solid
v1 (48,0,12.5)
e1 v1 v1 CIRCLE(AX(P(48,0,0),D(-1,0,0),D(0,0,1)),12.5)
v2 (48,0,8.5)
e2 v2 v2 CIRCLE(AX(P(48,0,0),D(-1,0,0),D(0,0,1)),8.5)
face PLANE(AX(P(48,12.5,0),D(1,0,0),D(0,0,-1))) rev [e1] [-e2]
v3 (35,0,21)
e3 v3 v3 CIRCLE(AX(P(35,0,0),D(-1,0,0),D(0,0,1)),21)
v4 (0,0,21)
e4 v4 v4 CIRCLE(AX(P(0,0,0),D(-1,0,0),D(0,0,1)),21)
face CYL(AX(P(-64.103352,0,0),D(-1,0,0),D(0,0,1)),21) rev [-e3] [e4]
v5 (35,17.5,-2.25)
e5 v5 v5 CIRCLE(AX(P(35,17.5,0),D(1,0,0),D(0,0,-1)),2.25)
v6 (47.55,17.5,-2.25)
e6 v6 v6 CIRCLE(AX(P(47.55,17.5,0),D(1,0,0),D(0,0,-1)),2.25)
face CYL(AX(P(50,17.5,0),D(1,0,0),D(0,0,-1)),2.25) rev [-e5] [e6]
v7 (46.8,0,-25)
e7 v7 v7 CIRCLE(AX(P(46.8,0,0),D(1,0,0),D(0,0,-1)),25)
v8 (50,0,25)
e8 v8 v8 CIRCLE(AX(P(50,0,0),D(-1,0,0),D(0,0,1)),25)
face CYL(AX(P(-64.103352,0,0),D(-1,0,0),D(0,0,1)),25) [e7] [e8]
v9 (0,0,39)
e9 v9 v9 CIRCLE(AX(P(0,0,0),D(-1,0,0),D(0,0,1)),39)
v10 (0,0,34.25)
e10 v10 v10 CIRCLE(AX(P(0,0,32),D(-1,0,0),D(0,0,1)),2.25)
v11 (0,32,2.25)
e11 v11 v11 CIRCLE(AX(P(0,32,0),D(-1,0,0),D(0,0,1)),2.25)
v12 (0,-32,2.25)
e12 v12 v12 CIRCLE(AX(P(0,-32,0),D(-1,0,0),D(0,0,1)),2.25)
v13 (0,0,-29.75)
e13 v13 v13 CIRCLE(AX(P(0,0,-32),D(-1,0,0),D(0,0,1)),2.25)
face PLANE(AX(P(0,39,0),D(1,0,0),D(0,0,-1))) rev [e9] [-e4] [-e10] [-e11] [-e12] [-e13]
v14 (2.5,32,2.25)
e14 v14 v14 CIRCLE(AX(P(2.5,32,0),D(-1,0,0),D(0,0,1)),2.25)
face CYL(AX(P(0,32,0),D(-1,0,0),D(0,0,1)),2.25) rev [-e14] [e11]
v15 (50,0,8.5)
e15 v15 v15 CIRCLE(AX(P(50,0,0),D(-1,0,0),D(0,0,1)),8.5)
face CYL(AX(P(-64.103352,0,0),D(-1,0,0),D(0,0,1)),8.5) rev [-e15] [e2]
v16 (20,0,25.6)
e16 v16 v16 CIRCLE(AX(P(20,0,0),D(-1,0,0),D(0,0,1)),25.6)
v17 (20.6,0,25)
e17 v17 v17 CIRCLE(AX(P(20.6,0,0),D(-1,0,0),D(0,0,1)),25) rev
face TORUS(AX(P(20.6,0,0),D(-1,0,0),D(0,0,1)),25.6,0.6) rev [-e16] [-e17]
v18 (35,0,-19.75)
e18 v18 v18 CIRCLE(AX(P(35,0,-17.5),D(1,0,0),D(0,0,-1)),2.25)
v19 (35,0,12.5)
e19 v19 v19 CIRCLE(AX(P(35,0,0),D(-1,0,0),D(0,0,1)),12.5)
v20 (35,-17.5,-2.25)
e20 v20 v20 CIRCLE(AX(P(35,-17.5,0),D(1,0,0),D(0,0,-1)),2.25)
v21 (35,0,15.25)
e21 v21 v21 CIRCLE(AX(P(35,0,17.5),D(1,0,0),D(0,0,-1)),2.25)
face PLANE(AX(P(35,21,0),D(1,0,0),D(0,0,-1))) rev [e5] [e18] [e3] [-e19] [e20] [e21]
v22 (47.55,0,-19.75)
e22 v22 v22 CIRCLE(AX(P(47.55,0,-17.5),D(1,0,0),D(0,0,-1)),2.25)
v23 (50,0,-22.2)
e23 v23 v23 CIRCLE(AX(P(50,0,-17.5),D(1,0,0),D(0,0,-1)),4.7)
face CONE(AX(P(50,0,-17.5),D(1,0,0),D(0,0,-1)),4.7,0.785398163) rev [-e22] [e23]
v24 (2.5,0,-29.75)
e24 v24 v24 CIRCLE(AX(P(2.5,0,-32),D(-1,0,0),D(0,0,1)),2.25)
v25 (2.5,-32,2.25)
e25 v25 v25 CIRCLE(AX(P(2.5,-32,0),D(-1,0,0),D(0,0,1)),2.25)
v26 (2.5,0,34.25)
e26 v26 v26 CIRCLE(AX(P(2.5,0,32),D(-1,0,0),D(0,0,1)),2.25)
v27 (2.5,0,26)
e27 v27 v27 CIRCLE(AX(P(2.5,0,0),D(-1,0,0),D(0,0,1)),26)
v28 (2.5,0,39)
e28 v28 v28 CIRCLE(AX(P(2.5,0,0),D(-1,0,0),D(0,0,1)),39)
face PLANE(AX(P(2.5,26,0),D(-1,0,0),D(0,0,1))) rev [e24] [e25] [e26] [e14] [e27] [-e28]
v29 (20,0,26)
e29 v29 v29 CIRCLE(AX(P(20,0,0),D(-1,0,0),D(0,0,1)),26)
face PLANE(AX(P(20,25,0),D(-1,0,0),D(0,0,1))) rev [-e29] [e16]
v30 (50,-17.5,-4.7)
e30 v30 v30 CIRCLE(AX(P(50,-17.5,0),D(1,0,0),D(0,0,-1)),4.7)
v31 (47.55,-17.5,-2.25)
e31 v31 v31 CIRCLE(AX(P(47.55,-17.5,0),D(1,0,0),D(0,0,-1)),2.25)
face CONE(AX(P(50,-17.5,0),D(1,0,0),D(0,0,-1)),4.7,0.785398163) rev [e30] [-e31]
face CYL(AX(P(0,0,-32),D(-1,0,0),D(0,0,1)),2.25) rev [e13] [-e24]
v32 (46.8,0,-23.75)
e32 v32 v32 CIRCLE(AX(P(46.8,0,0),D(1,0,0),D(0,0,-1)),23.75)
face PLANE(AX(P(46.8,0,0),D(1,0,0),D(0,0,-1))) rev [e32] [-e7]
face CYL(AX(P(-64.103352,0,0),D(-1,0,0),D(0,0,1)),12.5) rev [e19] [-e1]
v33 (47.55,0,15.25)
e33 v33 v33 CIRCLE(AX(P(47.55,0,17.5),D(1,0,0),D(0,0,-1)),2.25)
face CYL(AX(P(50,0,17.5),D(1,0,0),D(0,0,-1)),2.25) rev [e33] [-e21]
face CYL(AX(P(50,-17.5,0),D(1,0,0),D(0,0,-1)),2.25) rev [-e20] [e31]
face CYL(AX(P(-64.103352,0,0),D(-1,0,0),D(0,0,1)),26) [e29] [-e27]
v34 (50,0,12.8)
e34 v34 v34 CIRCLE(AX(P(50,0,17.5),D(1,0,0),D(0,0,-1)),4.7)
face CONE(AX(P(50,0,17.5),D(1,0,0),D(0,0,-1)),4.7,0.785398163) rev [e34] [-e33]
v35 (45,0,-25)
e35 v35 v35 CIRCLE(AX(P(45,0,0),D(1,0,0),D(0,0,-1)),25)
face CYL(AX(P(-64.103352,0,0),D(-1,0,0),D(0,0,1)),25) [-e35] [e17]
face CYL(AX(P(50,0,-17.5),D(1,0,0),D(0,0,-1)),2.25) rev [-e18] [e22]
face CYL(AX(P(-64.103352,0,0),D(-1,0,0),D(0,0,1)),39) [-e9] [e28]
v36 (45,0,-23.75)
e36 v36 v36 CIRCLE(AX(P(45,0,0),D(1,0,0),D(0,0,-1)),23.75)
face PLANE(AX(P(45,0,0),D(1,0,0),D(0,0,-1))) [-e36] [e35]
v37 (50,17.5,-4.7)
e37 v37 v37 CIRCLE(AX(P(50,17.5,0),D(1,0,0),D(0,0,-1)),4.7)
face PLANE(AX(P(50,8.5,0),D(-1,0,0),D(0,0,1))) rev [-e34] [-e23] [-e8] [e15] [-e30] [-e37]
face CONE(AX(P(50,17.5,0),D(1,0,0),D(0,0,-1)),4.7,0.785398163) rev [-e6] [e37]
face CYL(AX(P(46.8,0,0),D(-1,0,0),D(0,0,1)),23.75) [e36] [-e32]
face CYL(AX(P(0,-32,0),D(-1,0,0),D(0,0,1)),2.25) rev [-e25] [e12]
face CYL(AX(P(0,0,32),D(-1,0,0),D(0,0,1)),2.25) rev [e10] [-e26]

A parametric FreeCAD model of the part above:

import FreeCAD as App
import Part
import Sketcher
from FreeCAD import Vector


def edges_at(feature, points):
    """Names of the edges that pass closest to the given points."""
    edges = feature.Shape.Edges
    near = lambda p: min(range(len(edges)), key=lambda i: edges[i].distToShape(Part.Vertex(*p))[0])
    return sorted({f"Edge{near(p) + 1}" for p in points})

doc = App.newDocument("Part")
params = doc.addObject("Spreadsheet::Sheet", "Params")
for row, (alias, value) in enumerate([
    ("sketch1_width", "35 mm"),
    ("sketch1_width2", "13 mm"),
    ("sketch1_width3", "2 mm"),
    ("sketch1_width4", "30 mm"),
    ("sketch1_height", "4 mm"),
    ("revolution_angle", "360 deg"),
    ("sketch2_diameter", "4.5 mm"),
    ("hole_diameter", "4.5 mm"),
    ("hole_depth", "15 mm"),
    ("hole_csink_diameter", "9.4 mm"),
    ("fillet_radius", "0.6 mm"),
    ("sketch3_diameter", "50 mm"),
    ("sketch3_diameter2", "47.5 mm"),
    ("pocket1_length", "1.8 mm"),
    ("sketch4_diameter", "4.5 mm"),
    ("hole2_diameter", "4.5 mm"),
    ("hole2_depth", "2.5 mm"),
], start=1):
    params.set(f"A{row}", alias)
    params.set(f"B{row}", "=" + value)
    params.setAlias(f"B{row}", alias)

body = doc.addObject("PartDesign::Body", "Body")

sketch1 = body.newObject("Sketcher::SketchObject", "Sketch")
sketch1.AttachmentSupport = (doc.getObject("XY_Plane"), [""])
sketch1.MapMode = "FlatFace"
sketch1.addGeometry([
    Part.LineSegment(Vector(0, 21, 0), Vector(35, 21, 0)),
    Part.LineSegment(Vector(35, 21, 0), Vector(35, 12.5, 0)),
    Part.LineSegment(Vector(35, 12.5, 0), Vector(48, 12.5, 0)),
    Part.LineSegment(Vector(48, 12.5, 0), Vector(48, 8.5, 0)),
    Part.LineSegment(Vector(48, 8.5, 0), Vector(50, 8.5, 0)),
    Part.LineSegment(Vector(50, 8.5, 0), Vector(50, 25, 0)),
    Part.LineSegment(Vector(50, 25, 0), Vector(20, 25, 0)),
    Part.LineSegment(Vector(20, 25, 0), Vector(20, 26, 0)),
    Part.LineSegment(Vector(20, 26, 0), Vector(2.5, 26, 0)),
    Part.LineSegment(Vector(2.5, 26, 0), Vector(2.5, 39, 0)),
    Part.LineSegment(Vector(2.5, 39, 0), Vector(0, 39, 0)),
    Part.LineSegment(Vector(0, 39, 0), Vector(0, 21, 0)),
], False)
sketch1.addConstraint([
    Sketcher.Constraint("Coincident", 0, 2, 1, 1),
    Sketcher.Constraint("Coincident", 1, 2, 2, 1),
    Sketcher.Constraint("Coincident", 2, 2, 3, 1),
    Sketcher.Constraint("Coincident", 3, 2, 4, 1),
    Sketcher.Constraint("Coincident", 4, 2, 5, 1),
    Sketcher.Constraint("Coincident", 5, 2, 6, 1),
    Sketcher.Constraint("Coincident", 6, 2, 7, 1),
    Sketcher.Constraint("Coincident", 7, 2, 8, 1),
    Sketcher.Constraint("Coincident", 8, 2, 9, 1),
    Sketcher.Constraint("Coincident", 9, 2, 10, 1),
    Sketcher.Constraint("Coincident", 10, 2, 11, 1),
    Sketcher.Constraint("Coincident", 11, 2, 0, 1),
    Sketcher.Constraint("Horizontal", 0),
    Sketcher.Constraint("Vertical", 1),
    Sketcher.Constraint("Horizontal", 2),
    Sketcher.Constraint("Vertical", 3),
    Sketcher.Constraint("Horizontal", 4),
    Sketcher.Constraint("Vertical", 5),
    Sketcher.Constraint("Horizontal", 6),
    Sketcher.Constraint("Vertical", 7),
    Sketcher.Constraint("Horizontal", 8),
    Sketcher.Constraint("Vertical", 9),
    Sketcher.Constraint("Horizontal", 10),
    Sketcher.Constraint("Vertical", 11),
    Sketcher.Constraint("PointOnObject", 10, 2, -2),
    Sketcher.Constraint("Equal", 2, 9),
    Sketcher.Constraint("DistanceX", 0, 1, 0, 2, 35.0),
    Sketcher.Constraint("DistanceX", 2, 1, 2, 2, 13.0),
    Sketcher.Constraint("DistanceX", 4, 1, 4, 2, 2.0),
    Sketcher.Constraint("DistanceX", 6, 2, 6, 1, 30.0),
    Sketcher.Constraint("DistanceY", 3, 2, 3, 1, 4.0),
    Sketcher.Constraint("DistanceY", 7, 1, 7, 2, 1.0),
    Sketcher.Constraint("DistanceY", 11, 2, 11, 1, 18.0),
    Sketcher.Constraint("DistanceX", 8, 2, 8, 1, 17.5),
    Sketcher.Constraint("DistanceY", 1, 2, 1, 1, 8.5),
    Sketcher.Constraint("DistanceY", -1, 1, 0, 2, 21.0),
])
sketch1.setExpression("Constraints[26]", "Params.sketch1_width")
sketch1.setExpression("Constraints[27]", "Params.sketch1_width2")
sketch1.setExpression("Constraints[28]", "Params.sketch1_width3")
sketch1.setExpression("Constraints[29]", "Params.sketch1_width4")
sketch1.setExpression("Constraints[30]", "Params.sketch1_height")
revolution = body.newObject("PartDesign::Revolution", "Revolution")
revolution.Profile = sketch1
revolution.ReferenceAxis = (sketch1, ["H_Axis"])
revolution.setExpression("Angle", "Params.revolution_angle")

sketch2 = body.newObject("Sketcher::SketchObject", "Sketch001")
sketch2.AttachmentSupport = (doc.getObject("YZ_Plane"), [""])
sketch2.MapMode = "FlatFace"
sketch2.AttachmentOffset = App.Placement(Vector(0, 0, 50), App.Rotation())
sketch2.addGeometry([
    Part.Circle(Vector(17.5, 0, 0), Vector(0, 0, 1), 2.2),
    Part.Circle(Vector(0, -17.5, 0), Vector(0, 0, 1), 2.2),
    Part.Circle(Vector(-17.5, 0, 0), Vector(0, 0, 1), 2.2),
    Part.Circle(Vector(0, 17.5, 0), Vector(0, 0, 1), 2.2),
], False)
sketch2.addConstraint([
    Sketcher.Constraint("Equal", 0, 1),
    Sketcher.Constraint("Equal", 1, 2),
    Sketcher.Constraint("Equal", 2, 3),
    Sketcher.Constraint("Symmetric", 0, 3, 2, 3, -1, 1),
    Sketcher.Constraint("Symmetric", 1, 3, 3, 3, -1, 1),
    Sketcher.Constraint("PointOnObject", 0, 3, -1),
    Sketcher.Constraint("PointOnObject", 1, 3, -2),
    Sketcher.Constraint("Diameter", 0, 4.5),
    Sketcher.Constraint("DistanceX", 2, 3, 0, 3, 35.0),
    Sketcher.Constraint("DistanceY", 1, 3, 3, 3, 35.0),
])
sketch2.setExpression("Constraints[7]", "Params.sketch2_diameter")
doc.recompute()
hole = body.newObject("PartDesign::Hole", "Hole")
hole.Profile = sketch2
hole.ThreadType = "None"
hole.setExpression("Diameter", "Params.hole_diameter")
hole.DepthType = "Dimension"
hole.setExpression("Depth", "Params.hole_depth")
hole.DrillPoint = "Flat"
hole.HoleCutType = "Countersink"
hole.setExpression("HoleCutDiameter", "Params.hole_csink_diameter")
hole.HoleCutCountersinkAngle = 90
doc.recompute()

fillet = body.newObject("PartDesign::Fillet", "Fillet")
fillet.Base = (hole, edges_at(hole, [(20, -25, 0)]))
fillet.setExpression("Radius", "Params.fillet_radius")

sketch3 = body.newObject("Sketcher::SketchObject", "Sketch002")
sketch3.AttachmentSupport = (doc.getObject("YZ_Plane"), [""])
sketch3.MapMode = "FlatFace"
sketch3.AttachmentOffset = App.Placement(Vector(0, 0, 45), App.Rotation())
sketch3.addGeometry([
    Part.Circle(Vector(0, 0, 0), Vector(0, 0, 1), 25),
    Part.Circle(Vector(0, 0, 0), Vector(0, 0, 1), 24),
], False)
sketch3.addConstraint([
    Sketcher.Constraint("Coincident", 0, 3, -1, 1),
    Sketcher.Constraint("Coincident", 1, 3, -1, 1),
    Sketcher.Constraint("Diameter", 0, 50.0),
    Sketcher.Constraint("Diameter", 1, 47.5),
])
sketch3.setExpression("Constraints[2]", "Params.sketch3_diameter")
sketch3.setExpression("Constraints[3]", "Params.sketch3_diameter2")
pocket1 = body.newObject("PartDesign::Pocket", "Pocket")
pocket1.Profile = sketch3
pocket1.setExpression("Length", "Params.pocket1_length")
pocket1.Reversed = True

sketch4 = body.newObject("Sketcher::SketchObject", "Sketch003")
sketch4.AttachmentSupport = (doc.getObject("YZ_Plane"), [""])
sketch4.MapMode = "FlatFace"
sketch4.addGeometry([
    Part.Circle(Vector(32, 0, 0), Vector(0, 0, 1), 2.2),
    Part.Circle(Vector(-32, 0, 0), Vector(0, 0, 1), 2.2),
    Part.Circle(Vector(0, 32, 0), Vector(0, 0, 1), 2.2),
    Part.Circle(Vector(0, -32, 0), Vector(0, 0, 1), 2.2),
], False)
sketch4.addConstraint([
    Sketcher.Constraint("Equal", 0, 1),
    Sketcher.Constraint("Equal", 1, 2),
    Sketcher.Constraint("Equal", 2, 3),
    Sketcher.Constraint("Symmetric", 0, 3, 1, 3, -1, 1),
    Sketcher.Constraint("Symmetric", 2, 3, 3, 3, -1, 1),
    Sketcher.Constraint("PointOnObject", 0, 3, -1),
    Sketcher.Constraint("PointOnObject", 2, 3, -2),
    Sketcher.Constraint("Diameter", 0, 4.5),
    Sketcher.Constraint("DistanceX", -1, 1, 0, 3, 32.0),
    Sketcher.Constraint("DistanceY", -1, 1, 2, 3, 32.0),
])
sketch4.setExpression("Constraints[7]", "Params.sketch4_diameter")
doc.recompute()
hole2 = body.newObject("PartDesign::Hole", "Hole001")
hole2.Profile = sketch4
hole2.ThreadType = "None"
hole2.setExpression("Diameter", "Params.hole2_diameter")
hole2.DepthType = "Dimension"
hole2.setExpression("Depth", "Params.hole2_depth")
hole2.DrillPoint = "Flat"
hole2.Reversed = True

doc.recompute()
